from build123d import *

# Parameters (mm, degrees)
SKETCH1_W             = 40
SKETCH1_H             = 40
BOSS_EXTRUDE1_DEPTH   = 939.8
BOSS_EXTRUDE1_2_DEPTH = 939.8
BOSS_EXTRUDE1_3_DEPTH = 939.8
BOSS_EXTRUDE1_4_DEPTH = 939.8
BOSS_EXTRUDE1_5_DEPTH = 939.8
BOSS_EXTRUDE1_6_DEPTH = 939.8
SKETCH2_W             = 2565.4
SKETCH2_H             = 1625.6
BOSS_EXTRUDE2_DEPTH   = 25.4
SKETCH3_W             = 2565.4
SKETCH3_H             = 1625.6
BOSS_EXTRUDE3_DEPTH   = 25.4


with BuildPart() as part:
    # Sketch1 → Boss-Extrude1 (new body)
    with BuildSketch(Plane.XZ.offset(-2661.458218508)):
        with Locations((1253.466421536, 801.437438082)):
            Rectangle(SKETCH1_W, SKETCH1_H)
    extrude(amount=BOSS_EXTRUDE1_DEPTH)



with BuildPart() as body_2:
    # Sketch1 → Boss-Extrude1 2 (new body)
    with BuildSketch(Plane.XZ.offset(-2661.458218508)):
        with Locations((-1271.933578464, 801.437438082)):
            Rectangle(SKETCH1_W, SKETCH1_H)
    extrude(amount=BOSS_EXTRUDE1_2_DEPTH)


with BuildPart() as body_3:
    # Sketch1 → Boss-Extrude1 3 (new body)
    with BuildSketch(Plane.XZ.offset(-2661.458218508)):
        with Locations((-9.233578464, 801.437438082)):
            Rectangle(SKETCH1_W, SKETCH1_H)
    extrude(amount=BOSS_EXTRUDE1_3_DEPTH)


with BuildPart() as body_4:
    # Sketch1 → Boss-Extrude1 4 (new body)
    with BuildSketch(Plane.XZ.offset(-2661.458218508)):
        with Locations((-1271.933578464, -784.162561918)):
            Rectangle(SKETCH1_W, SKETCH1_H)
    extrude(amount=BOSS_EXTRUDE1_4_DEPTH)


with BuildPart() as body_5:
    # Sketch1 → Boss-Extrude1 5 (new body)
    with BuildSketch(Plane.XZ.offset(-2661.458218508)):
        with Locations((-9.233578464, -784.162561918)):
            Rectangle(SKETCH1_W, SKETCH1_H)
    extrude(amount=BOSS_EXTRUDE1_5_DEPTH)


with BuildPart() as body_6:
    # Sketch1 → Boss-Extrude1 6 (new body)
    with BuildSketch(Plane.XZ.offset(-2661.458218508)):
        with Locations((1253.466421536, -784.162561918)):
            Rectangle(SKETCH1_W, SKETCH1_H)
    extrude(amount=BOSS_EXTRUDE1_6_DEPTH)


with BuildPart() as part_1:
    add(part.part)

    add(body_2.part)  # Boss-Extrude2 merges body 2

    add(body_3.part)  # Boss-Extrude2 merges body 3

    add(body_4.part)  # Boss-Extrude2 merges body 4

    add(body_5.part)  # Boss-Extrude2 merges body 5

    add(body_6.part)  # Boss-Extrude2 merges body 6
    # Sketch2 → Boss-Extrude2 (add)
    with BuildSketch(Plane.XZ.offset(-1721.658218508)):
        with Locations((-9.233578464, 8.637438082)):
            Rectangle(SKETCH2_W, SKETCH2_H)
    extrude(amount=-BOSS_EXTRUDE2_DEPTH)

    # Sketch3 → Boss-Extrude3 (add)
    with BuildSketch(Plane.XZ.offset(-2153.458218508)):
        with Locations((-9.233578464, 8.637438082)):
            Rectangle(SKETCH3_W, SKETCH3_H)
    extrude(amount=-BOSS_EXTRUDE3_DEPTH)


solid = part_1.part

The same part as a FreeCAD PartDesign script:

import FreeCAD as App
import Part
import Sketcher
from FreeCAD import Vector
Q = App.Units.Quantity

doc = App.newDocument("Part")
body = doc.addObject("PartDesign::Body", "Body")

sketch1 = doc.addObject("Sketcher::SketchObject", "Sketch")
body.addObject(sketch1)
sketch1.AttachmentSupport = (doc.XZ_Plane, [""])
sketch1.MapMode = "FlatFace"
sketch1.AttachmentOffset = App.Placement(Vector(0, 0, -2661.458219), App.Rotation())
sketch1.addGeometry([
    Part.LineSegment(Vector(1233.466422, 821.437438, 0), Vector(1233.466422, 781.437438, 0)),
    Part.LineSegment(Vector(1233.466422, 781.437438, 0), Vector(1273.466422, 781.437438, 0)),
    Part.LineSegment(Vector(1273.466422, 781.437438, 0), Vector(1273.466422, 821.437438, 0)),
    Part.LineSegment(Vector(1273.466422, 821.437438, 0), Vector(1233.466422, 821.437438, 0)),
], False)
sketch1.addConstraint([
    Sketcher.Constraint("Coincident", 0, 2, 1, 1),
    Sketcher.Constraint("Coincident", 1, 2, 2, 1),
    Sketcher.Constraint("Coincident", 2, 2, 3, 1),
    Sketcher.Constraint("Coincident", 3, 2, 0, 1),
    Sketcher.Constraint("Vertical", 0),
    Sketcher.Constraint("Horizontal", 1),
    Sketcher.Constraint("Vertical", 2),
    Sketcher.Constraint("Horizontal", 3),
    Sketcher.Constraint("Equal", 3, 0),
    Sketcher.Constraint("DistanceX", 1, 1, 1, 2, Q("40 mm")),
    Sketcher.Constraint("DistanceX", -1, 1, 0, 2, Q("1233.466422 mm")),
    Sketcher.Constraint("DistanceY", -1, 1, 0, 2, Q("781.437438 mm")),
])
pad1 = doc.addObject("PartDesign::Pad", "Pad")
body.addObject(pad1)
pad1.Profile = sketch1
pad1.Length = Q("37 in")
body2 = doc.addObject("PartDesign::Body", "Body001")

sketch2 = doc.addObject("Sketcher::SketchObject", "Sketch001")
body2.addObject(sketch2)
sketch2.AttachmentSupport = (doc.getObject("XZ_Plane001"), [""])
sketch2.MapMode = "FlatFace"
sketch2.AttachmentOffset = App.Placement(Vector(0, 0, -2661.458219), App.Rotation())
sketch2.addGeometry([
    Part.LineSegment(Vector(-1291.933578, 821.437438, 0), Vector(-1291.933578, 781.437438, 0)),
    Part.LineSegment(Vector(-1291.933578, 781.437438, 0), Vector(-1251.933578, 781.437438, 0)),
    Part.LineSegment(Vector(-1251.933578, 781.437438, 0), Vector(-1251.933578, 821.437438, 0)),
    Part.LineSegment(Vector(-1251.933578, 821.437438, 0), Vector(-1291.933578, 821.437438, 0)),
], False)
sketch2.addConstraint([
    Sketcher.Constraint("Coincident", 0, 2, 1, 1),
    Sketcher.Constraint("Coincident", 1, 2, 2, 1),
    Sketcher.Constraint("Coincident", 2, 2, 3, 1),
    Sketcher.Constraint("Coincident", 3, 2, 0, 1),
    Sketcher.Constraint("Vertical", 0),
    Sketcher.Constraint("Horizontal", 1),
    Sketcher.Constraint("Vertical", 2),
    Sketcher.Constraint("Horizontal", 3),
    Sketcher.Constraint("Equal", 3, 0),
    Sketcher.Constraint("DistanceX", 1, 1, 1, 2, Q("40 mm")),
    Sketcher.Constraint("DistanceX", 0, 2, -1, 1, Q("1291.933578 mm")),
    Sketcher.Constraint("DistanceY", -1, 1, 0, 2, Q("781.437438 mm")),
])
pad2 = doc.addObject("PartDesign::Pad", "Pad001")
body2.addObject(pad2)
pad2.Profile = sketch2
pad2.Length = Q("37 in")
body3 = doc.addObject("PartDesign::Body", "Body002")

sketch3 = doc.addObject("Sketcher::SketchObject", "Sketch002")
body3.addObject(sketch3)
sketch3.AttachmentSupport = (doc.getObject("XZ_Plane002"), [""])
sketch3.MapMode = "FlatFace"
sketch3.AttachmentOffset = App.Placement(Vector(0, 0, -2661.458219), App.Rotation())
sketch3.addGeometry([
    Part.LineSegment(Vector(-29.233578, 821.437438, 0), Vector(-29.233578, 781.437438, 0)),
    Part.LineSegment(Vector(-29.233578, 781.437438, 0), Vector(10.766422, 781.437438, 0)),
    Part.LineSegment(Vector(10.766422, 781.437438, 0), Vector(10.766422, 821.437438, 0)),
    Part.LineSegment(Vector(10.766422, 821.437438, 0), Vector(-29.233578, 821.437438, 0)),
], False)
sketch3.addConstraint([
    Sketcher.Constraint("Coincident", 0, 2, 1, 1),
    Sketcher.Constraint("Coincident", 1, 2, 2, 1),
    Sketcher.Constraint("Coincident", 2, 2, 3, 1),
    Sketcher.Constraint("Coincident", 3, 2, 0, 1),
    Sketcher.Constraint("Vertical", 0),
    Sketcher.Constraint("Horizontal", 1),
    Sketcher.Constraint("Vertical", 2),
    Sketcher.Constraint("Horizontal", 3),
    Sketcher.Constraint("Equal", 3, 0),
    Sketcher.Constraint("DistanceX", 1, 1, 1, 2, Q("40 mm")),
    Sketcher.Constraint("DistanceX", 0, 2, -1, 1, Q("29.233578 mm")),
    Sketcher.Constraint("DistanceY", -1, 1, 0, 2, Q("781.437438 mm")),
])
pad3 = doc.addObject("PartDesign::Pad", "Pad002")
body3.addObject(pad3)
pad3.Profile = sketch3
pad3.Length = Q("37 in")
body4 = doc.addObject("PartDesign::Body", "Body003")

sketch4 = doc.addObject("Sketcher::SketchObject", "Sketch003")
body4.addObject(sketch4)
sketch4.AttachmentSupport = (doc.getObject("XZ_Plane003"), [""])
sketch4.MapMode = "FlatFace"
sketch4.AttachmentOffset = App.Placement(Vector(0, 0, -2661.458219), App.Rotation())
sketch4.addGeometry([
    Part.LineSegment(Vector(-1291.933578, -764.162562, 0), Vector(-1291.933578, -804.162562, 0)),
    Part.LineSegment(Vector(-1291.933578, -804.162562, 0), Vector(-1251.933578, -804.162562, 0)),
    Part.LineSegment(Vector(-1251.933578, -804.162562, 0), Vector(-1251.933578, -764.162562, 0)),
    Part.LineSegment(Vector(-1251.933578, -764.162562, 0), Vector(-1291.933578, -764.162562, 0)),
], False)
sketch4.addConstraint([
    Sketcher.Constraint("Coincident", 0, 2, 1, 1),
    Sketcher.Constraint("Coincident", 1, 2, 2, 1),
    Sketcher.Constraint("Coincident", 2, 2, 3, 1),
    Sketcher.Constraint("Coincident", 3, 2, 0, 1),
    Sketcher.Constraint("Vertical", 0),
    Sketcher.Constraint("Horizontal", 1),
    Sketcher.Constraint("Vertical", 2),
    Sketcher.Constraint("Horizontal", 3),
    Sketcher.Constraint("Equal", 3, 0),
    Sketcher.Constraint("DistanceX", 1, 1, 1, 2, Q("40 mm")),
    Sketcher.Constraint("DistanceX", 0, 2, -1, 1, Q("1291.933578 mm")),
    Sketcher.Constraint("DistanceY", 0, 2, -1, 1, Q("804.162562 mm")),
])
pad4 = doc.addObject("PartDesign::Pad", "Pad003")
body4.addObject(pad4)
pad4.Profile = sketch4
pad4.Length = Q("37 in")
body5 = doc.addObject("PartDesign::Body", "Body004")

sketch5 = doc.addObject("Sketcher::SketchObject", "Sketch004")
body5.addObject(sketch5)
sketch5.AttachmentSupport = (doc.getObject("XZ_Plane004"), [""])
sketch5.MapMode = "FlatFace"
sketch5.AttachmentOffset = App.Placement(Vector(0, 0, -2661.458219), App.Rotation())
sketch5.addGeometry([
    Part.LineSegment(Vector(-29.233578, -764.162562, 0), Vector(-29.233578, -804.162562, 0)),
    Part.LineSegment(Vector(-29.233578, -804.162562, 0), Vector(10.766422, -804.162562, 0)),
    Part.LineSegment(Vector(10.766422, -804.162562, 0), Vector(10.766422, -764.162562, 0)),
    Part.LineSegment(Vector(10.766422, -764.162562, 0), Vector(-29.233578, -764.162562, 0)),
], False)
sketch5.addConstraint([
    Sketcher.Constraint("Coincident", 0, 2, 1, 1),
    Sketcher.Constraint("Coincident", 1, 2, 2, 1),
    Sketcher.Constraint("Coincident", 2, 2, 3, 1),
    Sketcher.Constraint("Coincident", 3, 2, 0, 1),
    Sketcher.Constraint("Vertical", 0),
    Sketcher.Constraint("Horizontal", 1),
    Sketcher.Constraint("Vertical", 2),
    Sketcher.Constraint("Horizontal", 3),
    Sketcher.Constraint("Equal", 3, 0),
    Sketcher.Constraint("DistanceX", 1, 1, 1, 2, Q("40 mm")),
    Sketcher.Constraint("DistanceX", 0, 2, -1, 1, Q("29.233578 mm")),
    Sketcher.Constraint("DistanceY", 0, 2, -1, 1, Q("804.162562 mm")),
])
pad5 = doc.addObject("PartDesign::Pad", "Pad004")
body5.addObject(pad5)
pad5.Profile = sketch5
pad5.Length = Q("37 in")
body6 = doc.addObject("PartDesign::Body", "Body005")

sketch6 = doc.addObject("Sketcher::SketchObject", "Sketch005")
body6.addObject(sketch6)
sketch6.AttachmentSupport = (doc.getObject("XZ_Plane005"), [""])
sketch6.MapMode = "FlatFace"
sketch6.AttachmentOffset = App.Placement(Vector(0, 0, -2661.458219), App.Rotation())
sketch6.addGeometry([
    Part.LineSegment(Vector(1233.466422, -764.162562, 0), Vector(1233.466422, -804.162562, 0)),
    Part.LineSegment(Vector(1233.466422, -804.162562, 0), Vector(1273.466422, -804.162562, 0)),
    Part.LineSegment(Vector(1273.466422, -804.162562, 0), Vector(1273.466422, -764.162562, 0)),
    Part.LineSegment(Vector(1273.466422, -764.162562, 0), Vector(1233.466422, -764.162562, 0)),
], False)
sketch6.addConstraint([
    Sketcher.Constraint("Coincident", 0, 2, 1, 1),
    Sketcher.Constraint("Coincident", 1, 2, 2, 1),
    Sketcher.Constraint("Coincident", 2, 2, 3, 1),
    Sketcher.Constraint("Coincident", 3, 2, 0, 1),
    Sketcher.Constraint("Vertical", 0),
    Sketcher.Constraint("Horizontal", 1),
    Sketcher.Constraint("Vertical", 2),
    Sketcher.Constraint("Horizontal", 3),
    Sketcher.Constraint("Equal", 3, 0),
    Sketcher.Constraint("DistanceX", 1, 1, 1, 2, Q("40 mm")),
    Sketcher.Constraint("DistanceX", -1, 1, 0, 2, Q("1233.466422 mm")),
    Sketcher.Constraint("DistanceY", 0, 2, -1, 1, Q("804.162562 mm")),
])
pad6 = doc.addObject("PartDesign::Pad", "Pad005")
body6.addObject(pad6)
pad6.Profile = sketch6
pad6.Length = Q("37 in")
body.AllowCompound = True
doc.recompute()

boolean = doc.addObject("PartDesign::Boolean", "Boolean")
body.addObject(boolean)
boolean.Type = "Fuse"
boolean.addObjects([body2])
doc.recompute()

boolean2 = doc.addObject("PartDesign::Boolean", "Boolean001")
body.addObject(boolean2)
boolean2.Type = "Fuse"
boolean2.addObjects([body3])
doc.recompute()

boolean3 = doc.addObject("PartDesign::Boolean", "Boolean002")
body.addObject(boolean3)
boolean3.Type = "Fuse"
boolean3.addObjects([body4])
doc.recompute()

boolean4 = doc.addObject("PartDesign::Boolean", "Boolean003")
body.addObject(boolean4)
boolean4.Type = "Fuse"
boolean4.addObjects([body5])
doc.recompute()

boolean5 = doc.addObject("PartDesign::Boolean", "Boolean004")
body.addObject(boolean5)
boolean5.Type = "Fuse"
boolean5.addObjects([body6])

sketch7 = doc.addObject("Sketcher::SketchObject", "Sketch006")
body.addObject(sketch7)
sketch7.AttachmentSupport = (doc.XZ_Plane, [""])
sketch7.MapMode = "FlatFace"
sketch7.AttachmentOffset = App.Placement(Vector(0, 0, -1721.658219), App.Rotation())
sketch7.addGeometry([
    Part.LineSegment(Vector(-1291.933578, 821.437438, 0), Vector(-1291.933578, -804.162562, 0)),
    Part.LineSegment(Vector(-1291.933578, -804.162562, 0), Vector(1273.466422, -804.162562, 0)),
    Part.LineSegment(Vector(1273.466422, -804.162562, 0), Vector(1273.466422, 821.437438, 0)),
    Part.LineSegment(Vector(1273.466422, 821.437438, 0), Vector(-1291.933578, 821.437438, 0)),
], False)
sketch7.addConstraint([
    Sketcher.Constraint("Coincident", 0, 2, 1, 1),
    Sketcher.Constraint("Coincident", 1, 2, 2, 1),
    Sketcher.Constraint("Coincident", 2, 2, 3, 1),
    Sketcher.Constraint("Coincident", 3, 2, 0, 1),
    Sketcher.Constraint("Vertical", 0),
    Sketcher.Constraint("Horizontal", 1),
    Sketcher.Constraint("Vertical", 2),
    Sketcher.Constraint("Horizontal", 3),
    Sketcher.Constraint("DistanceX", 1, 1, 1, 2, Q("101 in")),
    Sketcher.Constraint("DistanceY", 0, 2, 0, 1, Q("64 in")),
    Sketcher.Constraint("DistanceX", 0, 2, -1, 1, Q("1291.933578 mm")),
    Sketcher.Constraint("DistanceY", 0, 2, -1, 1, Q("804.162562 mm")),
])
pad7 = doc.addObject("PartDesign::Pad", "Pad006")
body.addObject(pad7)
pad7.Profile = sketch7
pad7.Length = Q("1 in")
pad7.Reversed = True

sketch8 = doc.addObject("Sketcher::SketchObject", "Sketch007")
body.addObject(sketch8)
sketch8.AttachmentSupport = (doc.XZ_Plane, [""])
sketch8.MapMode = "FlatFace"
sketch8.AttachmentOffset = App.Placement(Vector(0, 0, -2153.458219), App.Rotation())
sketch8.addGeometry([
    Part.LineSegment(Vector(-1291.933578, 821.437438, 0), Vector(-1291.933578, -804.162562, 0)),
    Part.LineSegment(Vector(-1291.933578, -804.162562, 0), Vector(1273.466422, -804.162562, 0)),
    Part.LineSegment(Vector(1273.466422, -804.162562, 0), Vector(1273.466422, 821.437438, 0)),
    Part.LineSegment(Vector(1273.466422, 821.437438, 0), Vector(-1291.933578, 821.437438, 0)),
], False)
sketch8.addConstraint([
    Sketcher.Constraint("Coincident", 0, 2, 1, 1),
    Sketcher.Constraint("Coincident", 1, 2, 2, 1),
    Sketcher.Constraint("Coincident", 2, 2, 3, 1),
    Sketcher.Constraint("Coincident", 3, 2, 0, 1),
    Sketcher.Constraint("Vertical", 0),
    Sketcher.Constraint("Horizontal", 1),
    Sketcher.Constraint("Vertical", 2),
    Sketcher.Constraint("Horizontal", 3),
    Sketcher.Constraint("DistanceX", 1, 1, 1, 2, Q("101 in")),
    Sketcher.Constraint("DistanceY", 0, 2, 0, 1, Q("64 in")),
    Sketcher.Constraint("DistanceX", 0, 2, -1, 1, Q("1291.933578 mm")),
    Sketcher.Constraint("DistanceY", 0, 2, -1, 1, Q("804.162562 mm")),
])
pad8 = doc.addObject("PartDesign::Pad", "Pad007")
body.addObject(pad8)
pad8.Profile = sketch8
pad8.Length = Q("1 in")
pad8.Reversed = True

doc.recompute()
